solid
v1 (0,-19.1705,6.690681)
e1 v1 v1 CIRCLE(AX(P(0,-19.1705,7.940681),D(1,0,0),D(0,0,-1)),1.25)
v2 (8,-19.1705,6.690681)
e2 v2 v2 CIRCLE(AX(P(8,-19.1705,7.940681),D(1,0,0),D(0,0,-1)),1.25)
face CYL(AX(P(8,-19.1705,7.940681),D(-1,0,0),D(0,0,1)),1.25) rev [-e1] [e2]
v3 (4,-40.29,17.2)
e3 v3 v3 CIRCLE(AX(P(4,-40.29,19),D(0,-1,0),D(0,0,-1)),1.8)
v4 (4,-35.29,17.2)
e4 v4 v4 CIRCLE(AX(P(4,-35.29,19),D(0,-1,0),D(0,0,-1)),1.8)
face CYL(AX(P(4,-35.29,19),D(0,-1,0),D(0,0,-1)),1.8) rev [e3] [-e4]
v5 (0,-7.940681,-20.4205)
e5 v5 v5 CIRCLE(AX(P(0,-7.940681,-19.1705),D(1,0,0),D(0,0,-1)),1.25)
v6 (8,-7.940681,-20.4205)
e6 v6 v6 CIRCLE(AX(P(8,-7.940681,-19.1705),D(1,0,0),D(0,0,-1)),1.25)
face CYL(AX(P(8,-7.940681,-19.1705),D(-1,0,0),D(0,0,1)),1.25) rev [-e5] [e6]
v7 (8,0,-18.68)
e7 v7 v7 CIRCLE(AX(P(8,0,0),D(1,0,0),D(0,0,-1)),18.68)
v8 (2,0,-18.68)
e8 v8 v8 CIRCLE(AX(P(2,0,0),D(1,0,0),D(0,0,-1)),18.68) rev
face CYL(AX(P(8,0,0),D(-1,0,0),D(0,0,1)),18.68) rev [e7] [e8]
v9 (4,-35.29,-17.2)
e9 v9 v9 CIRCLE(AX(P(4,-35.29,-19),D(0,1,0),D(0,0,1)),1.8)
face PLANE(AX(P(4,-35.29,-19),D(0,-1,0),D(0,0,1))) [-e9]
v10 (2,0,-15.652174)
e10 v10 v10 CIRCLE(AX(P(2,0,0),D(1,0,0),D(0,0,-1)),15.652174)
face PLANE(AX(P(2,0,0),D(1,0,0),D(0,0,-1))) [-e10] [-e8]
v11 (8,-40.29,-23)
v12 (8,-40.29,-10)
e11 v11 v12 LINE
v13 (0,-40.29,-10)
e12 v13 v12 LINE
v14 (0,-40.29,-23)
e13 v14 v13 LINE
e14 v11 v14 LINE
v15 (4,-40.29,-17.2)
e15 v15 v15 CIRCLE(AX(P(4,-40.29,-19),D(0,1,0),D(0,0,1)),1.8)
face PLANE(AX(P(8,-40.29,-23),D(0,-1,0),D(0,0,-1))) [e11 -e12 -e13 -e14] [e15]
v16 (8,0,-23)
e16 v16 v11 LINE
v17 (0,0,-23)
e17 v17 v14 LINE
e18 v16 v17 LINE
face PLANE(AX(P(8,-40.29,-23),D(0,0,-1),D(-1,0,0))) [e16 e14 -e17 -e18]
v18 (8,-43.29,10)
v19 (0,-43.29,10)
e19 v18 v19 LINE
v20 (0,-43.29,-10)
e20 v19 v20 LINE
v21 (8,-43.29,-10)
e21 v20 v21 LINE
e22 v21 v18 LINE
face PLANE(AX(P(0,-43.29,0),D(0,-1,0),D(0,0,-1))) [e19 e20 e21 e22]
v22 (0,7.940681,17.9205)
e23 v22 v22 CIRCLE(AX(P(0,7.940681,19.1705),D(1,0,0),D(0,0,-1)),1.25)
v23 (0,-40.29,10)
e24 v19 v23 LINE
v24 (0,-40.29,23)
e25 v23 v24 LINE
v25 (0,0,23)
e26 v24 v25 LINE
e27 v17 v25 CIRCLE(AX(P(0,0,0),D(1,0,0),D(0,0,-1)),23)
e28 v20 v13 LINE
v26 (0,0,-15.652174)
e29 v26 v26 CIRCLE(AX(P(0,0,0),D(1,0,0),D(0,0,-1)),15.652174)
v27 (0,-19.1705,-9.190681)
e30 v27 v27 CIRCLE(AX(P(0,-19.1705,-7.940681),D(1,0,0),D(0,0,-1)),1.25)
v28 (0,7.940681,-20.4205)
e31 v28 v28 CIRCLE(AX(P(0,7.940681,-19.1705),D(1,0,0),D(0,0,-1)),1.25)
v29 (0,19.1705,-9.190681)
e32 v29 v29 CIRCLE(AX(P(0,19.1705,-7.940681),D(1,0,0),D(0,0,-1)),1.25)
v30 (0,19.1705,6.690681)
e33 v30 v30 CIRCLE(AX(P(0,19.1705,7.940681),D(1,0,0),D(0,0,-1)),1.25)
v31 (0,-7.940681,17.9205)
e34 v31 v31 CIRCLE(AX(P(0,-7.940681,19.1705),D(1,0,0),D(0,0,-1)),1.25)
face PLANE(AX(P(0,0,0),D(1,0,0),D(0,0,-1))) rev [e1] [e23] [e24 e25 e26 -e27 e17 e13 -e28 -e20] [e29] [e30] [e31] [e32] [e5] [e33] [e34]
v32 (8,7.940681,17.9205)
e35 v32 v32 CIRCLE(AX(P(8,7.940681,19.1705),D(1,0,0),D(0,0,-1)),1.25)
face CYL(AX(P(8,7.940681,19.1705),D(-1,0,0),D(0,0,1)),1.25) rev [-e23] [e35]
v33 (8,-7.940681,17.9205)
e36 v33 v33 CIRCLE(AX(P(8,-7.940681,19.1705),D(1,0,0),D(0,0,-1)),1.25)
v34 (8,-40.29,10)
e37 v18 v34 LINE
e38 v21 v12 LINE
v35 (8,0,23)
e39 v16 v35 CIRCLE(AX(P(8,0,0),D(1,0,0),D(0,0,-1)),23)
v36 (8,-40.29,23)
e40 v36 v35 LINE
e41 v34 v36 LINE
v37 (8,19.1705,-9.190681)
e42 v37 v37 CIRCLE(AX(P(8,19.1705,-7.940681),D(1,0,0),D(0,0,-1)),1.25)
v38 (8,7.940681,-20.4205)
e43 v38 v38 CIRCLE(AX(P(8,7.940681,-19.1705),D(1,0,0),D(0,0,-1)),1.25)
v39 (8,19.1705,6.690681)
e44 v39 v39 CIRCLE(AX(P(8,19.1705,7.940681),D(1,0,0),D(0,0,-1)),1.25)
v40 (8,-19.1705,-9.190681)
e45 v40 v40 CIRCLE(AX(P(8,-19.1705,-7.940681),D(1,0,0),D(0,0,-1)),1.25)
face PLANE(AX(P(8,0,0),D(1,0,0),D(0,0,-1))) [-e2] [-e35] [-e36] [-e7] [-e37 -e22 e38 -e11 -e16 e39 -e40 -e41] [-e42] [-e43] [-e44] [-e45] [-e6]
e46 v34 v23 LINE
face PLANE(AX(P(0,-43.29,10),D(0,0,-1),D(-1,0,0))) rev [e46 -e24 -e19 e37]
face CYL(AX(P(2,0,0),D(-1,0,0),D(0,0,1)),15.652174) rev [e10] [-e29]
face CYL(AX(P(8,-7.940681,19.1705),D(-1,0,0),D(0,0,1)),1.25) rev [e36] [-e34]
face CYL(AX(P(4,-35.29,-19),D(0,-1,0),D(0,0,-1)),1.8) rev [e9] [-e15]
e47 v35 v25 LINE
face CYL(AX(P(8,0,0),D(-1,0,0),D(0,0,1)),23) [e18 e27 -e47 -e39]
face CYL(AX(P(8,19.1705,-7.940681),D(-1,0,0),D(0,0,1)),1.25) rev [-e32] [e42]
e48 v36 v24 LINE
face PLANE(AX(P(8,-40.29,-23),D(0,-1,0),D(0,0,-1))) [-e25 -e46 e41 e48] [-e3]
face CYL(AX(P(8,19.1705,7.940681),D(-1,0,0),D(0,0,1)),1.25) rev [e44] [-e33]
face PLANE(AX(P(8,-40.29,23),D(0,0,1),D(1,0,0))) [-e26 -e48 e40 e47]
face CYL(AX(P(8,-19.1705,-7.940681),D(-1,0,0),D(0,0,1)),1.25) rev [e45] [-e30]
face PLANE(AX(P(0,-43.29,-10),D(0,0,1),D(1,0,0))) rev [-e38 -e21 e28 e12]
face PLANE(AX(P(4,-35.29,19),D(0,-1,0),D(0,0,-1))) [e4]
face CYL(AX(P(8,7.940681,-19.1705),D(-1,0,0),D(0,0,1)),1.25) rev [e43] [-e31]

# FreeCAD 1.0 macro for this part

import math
import FreeCAD as App
import Part
import Sketcher

V = App.Vector
Q = App.Units.Quantity

doc = App.newDocument("Part")
body = doc.addObject("PartDesign::Body", "Body")

# Sketch on YZ plane
sketch1 = body.newObject("Sketcher::SketchObject", "Sketch")
sketch1.AttachmentSupport = (doc.getObject("YZ_Plane"), [""])
sketch1.MapMode = "FlatFace"
sketch1.addGeometry([
    Part.Circle(V(0, 0, 0), V(0, 0, 1), 19),
    Part.Circle(V(0, 0, 0), V(0, 0, 1), 16),
], False)
sketch1.addConstraint([
    Sketcher.Constraint("Coincident", 0, 3, -1, 1),
    Sketcher.Constraint("Coincident", 1, 3, -1, 1),
    Sketcher.Constraint("Diameter", 0, Q("37.36 mm")),
    Sketcher.Constraint("Diameter", 1, Q("31.304348 mm")),
])
pad1 = body.newObject("PartDesign::Pad", "Pad")
pad1.Profile = sketch1
pad1.Length = 2

# Sketch on YZ plane
sketch2 = body.newObject("Sketcher::SketchObject", "Sketch001")
sketch2.AttachmentSupport = (doc.getObject("YZ_Plane"), [""])
sketch2.MapMode = "FlatFace"
sketch2.addGeometry([
    Part.Circle(V(0, 0, 0), V(0, 0, 1), 23),  # 0
    Part.Circle(V(-19.2, 7.9, 0), V(0, 0, 1), 1.2),  # 1
    Part.Circle(V(-7.9, 19.2, 0), V(0, 0, 1), 1.2),  # 2
    Part.Circle(V(0, 0, 0), V(0, 0, 1), 18.7),  # 3
    Part.Circle(V(-19.2, -7.9, 0), V(0, 0, 1), 1.2),  # 4
    Part.Circle(V(-7.9, -19.2, 0), V(0, 0, 1), 1.2),  # 5
    Part.Circle(V(7.9, 19.2, 0), V(0, 0, 1), 1.2),  # 6
    Part.Circle(V(19.2, 7.9, 0), V(0, 0, 1), 1.2),  # 7
    Part.Circle(V(7.9, -19.2, 0), V(0, 0, 1), 1.2),  # 8
    Part.Circle(V(19.2, -7.9, 0), V(0, 0, 1), 1.2),  # 9
], False)
sketch2.addConstraint([
    Sketcher.Constraint("Coincident", 0, 3, -1, 1),
    Sketcher.Constraint("Coincident", 3, 3, -1, 1),
    Sketcher.Constraint("Equal", 1, 2),
    Sketcher.Constraint("Equal", 2, 4),
    Sketcher.Constraint("Equal", 4, 5),
    Sketcher.Constraint("Equal", 5, 6),
    Sketcher.Constraint("Equal", 6, 7),
    Sketcher.Constraint("Equal", 7, 8),
    Sketcher.Constraint("Equal", 8, 9),
    Sketcher.Constraint("Symmetric", 5, 3, 6, 3, -1, 1),
    Sketcher.Constraint("Symmetric", 4, 3, 7, 3, -1, 1),
    Sketcher.Constraint("Symmetric", 2, 3, 8, 3, -1, 1),
    Sketcher.Constraint("Symmetric", 1, 3, 9, 3, -1, 1),
    Sketcher.Constraint("Symmetric", 2, 3, 6, 3, -2),
    Sketcher.Constraint("Symmetric", 1, 3, 7, 3, -2),
    Sketcher.Constraint("Diameter", 0, Q("46 mm")),
    Sketcher.Constraint("Diameter", 1, Q("2.5 mm")),
    Sketcher.Constraint("Diameter", 3, Q("37.36 mm")),
    Sketcher.Constraint("DistanceY", 5, 3, 2, 3, Q("38.341001 mm")),
    Sketcher.Constraint("DistanceX", 1, 3, 7, 3, Q("38.341001 mm")),
    Sketcher.Constraint("DistanceY", -1, 1, 1, 3, Q("7.940681 mm")),
    Sketcher.Constraint("DistanceX", 2, 3, -1, 1, Q("7.940681 mm")),
])
pad2 = body.newObject("PartDesign::Pad", "Pad001")
pad2.Profile = sketch2
pad2.Length = 8

# Sketch on YZ plane
sketch3 = body.newObject("Sketcher::SketchObject", "Sketch002")
sketch3.AttachmentSupport = (doc.getObject("YZ_Plane"), [""])
sketch3.MapMode = "FlatFace"
sketch3.addGeometry([
    Part.LineSegment(V(0, -23, 0), V(-40, -23, 0)),
    Part.LineSegment(V(-40, -23, 0), V(-40, 23, 0)),
    Part.LineSegment(V(-40, 23, 0), V(0, 23, 0)),
    Part.ArcOfCircle(Part.Circle(V(0, 0, 0), V(0, 0, 1), 23), math.radians(90), math.radians(270)),
], False)
sketch3.addConstraint([
    Sketcher.Constraint("Coincident", 0, 2, 1, 1),
    Sketcher.Constraint("Coincident", 1, 2, 2, 1),
    Sketcher.Constraint("Tangent", 2, 2, 3, 1),
    Sketcher.Constraint("Tangent", 3, 2, 0, 1),
    Sketcher.Constraint("Horizontal", 0),
    Sketcher.Constraint("Vertical", 1),
    Sketcher.Constraint("Horizontal", 2),
    Sketcher.Constraint("Coincident", 3, 3, -1, 1),
    Sketcher.Constraint("Radius", 3, Q("23 mm")),
    Sketcher.Constraint("DistanceX", 0, 2, 0, 1, Q("40.29 mm")),
])
pad3 = body.newObject("PartDesign::Pad", "Pad002")
pad3.Profile = sketch3
pad3.Length = 8

# Sketch on XZ plane
sketch4 = body.newObject("Sketcher::SketchObject", "Sketch003")
sketch4.AttachmentSupport = (doc.getObject("XZ_Plane"), [""])
sketch4.MapMode = "FlatFace"
sketch4.AttachmentOffset = App.Placement(V(0, 0, 40.29), App.Rotation())
sketch4.addGeometry(Part.Circle(V(4, 19, 0), V(0, 0, 1), 1.8), False)
sketch4.addConstraint([
    Sketcher.Constraint("Diameter", 0, Q("3.6 mm")),
    Sketcher.Constraint("DistanceX", -1, 1, 0, 3, Q("4 mm")),
    Sketcher.Constraint("DistanceY", -1, 1, 0, 3, Q("19 mm")),
])
pocket1 = body.newObject("PartDesign::Pocket", "Pocket")
pocket1.Profile = sketch4
pocket1.Length = 5
doc.recompute()

mirrored = body.newObject("PartDesign::Mirrored", "Mirrored")
mirrored.Originals = [pocket1]
mirrored.MirrorPlane = (doc.getObject("XY_Plane"), [""])
body.Tip = mirrored

# Sketch on XZ plane
sketch5 = body.newObject("Sketcher::SketchObject", "Sketch004")
sketch5.AttachmentSupport = (doc.getObject("XZ_Plane"), [""])
sketch5.MapMode = "FlatFace"
sketch5.AttachmentOffset = App.Placement(V(0, 0, 40.29), App.Rotation())
sketch5.addGeometry([
    Part.LineSegment(V(8, -10, 0), V(8, 10, 0)),
    Part.LineSegment(V(8, 10, 0), V(0, 10, 0)),
    Part.LineSegment(V(0, 10, 0), V(0, -10, 0)),
    Part.LineSegment(V(0, -10, 0), V(8, -10, 0)),
], False)
sketch5.addConstraint([
    Sketcher.Constraint("Coincident", 0, 2, 1, 1),
    Sketcher.Constraint("Coincident", 1, 2, 2, 1),
    Sketcher.Constraint("Coincident", 2, 2, 3, 1),
    Sketcher.Constraint("Coincident", 3, 2, 0, 1),
    Sketcher.Constraint("Vertical", 0),
    Sketcher.Constraint("Horizontal", 1),
    Sketcher.Constraint("Vertical", 2),
    Sketcher.Constraint("Horizontal", 3),
    Sketcher.Constraint("Symmetric", 1, 2, 2, 2, -1, 1),
    Sketcher.Constraint("DistanceX", 1, 2, 1, 1, Q("8 mm")),
    Sketcher.Constraint("DistanceY", 0, 1, 0, 2, Q("20 mm")),
])
pad4 = body.newObject("PartDesign::Pad", "Pad003")
pad4.Profile = sketch5
pad4.Length = 3

doc.recompute()
